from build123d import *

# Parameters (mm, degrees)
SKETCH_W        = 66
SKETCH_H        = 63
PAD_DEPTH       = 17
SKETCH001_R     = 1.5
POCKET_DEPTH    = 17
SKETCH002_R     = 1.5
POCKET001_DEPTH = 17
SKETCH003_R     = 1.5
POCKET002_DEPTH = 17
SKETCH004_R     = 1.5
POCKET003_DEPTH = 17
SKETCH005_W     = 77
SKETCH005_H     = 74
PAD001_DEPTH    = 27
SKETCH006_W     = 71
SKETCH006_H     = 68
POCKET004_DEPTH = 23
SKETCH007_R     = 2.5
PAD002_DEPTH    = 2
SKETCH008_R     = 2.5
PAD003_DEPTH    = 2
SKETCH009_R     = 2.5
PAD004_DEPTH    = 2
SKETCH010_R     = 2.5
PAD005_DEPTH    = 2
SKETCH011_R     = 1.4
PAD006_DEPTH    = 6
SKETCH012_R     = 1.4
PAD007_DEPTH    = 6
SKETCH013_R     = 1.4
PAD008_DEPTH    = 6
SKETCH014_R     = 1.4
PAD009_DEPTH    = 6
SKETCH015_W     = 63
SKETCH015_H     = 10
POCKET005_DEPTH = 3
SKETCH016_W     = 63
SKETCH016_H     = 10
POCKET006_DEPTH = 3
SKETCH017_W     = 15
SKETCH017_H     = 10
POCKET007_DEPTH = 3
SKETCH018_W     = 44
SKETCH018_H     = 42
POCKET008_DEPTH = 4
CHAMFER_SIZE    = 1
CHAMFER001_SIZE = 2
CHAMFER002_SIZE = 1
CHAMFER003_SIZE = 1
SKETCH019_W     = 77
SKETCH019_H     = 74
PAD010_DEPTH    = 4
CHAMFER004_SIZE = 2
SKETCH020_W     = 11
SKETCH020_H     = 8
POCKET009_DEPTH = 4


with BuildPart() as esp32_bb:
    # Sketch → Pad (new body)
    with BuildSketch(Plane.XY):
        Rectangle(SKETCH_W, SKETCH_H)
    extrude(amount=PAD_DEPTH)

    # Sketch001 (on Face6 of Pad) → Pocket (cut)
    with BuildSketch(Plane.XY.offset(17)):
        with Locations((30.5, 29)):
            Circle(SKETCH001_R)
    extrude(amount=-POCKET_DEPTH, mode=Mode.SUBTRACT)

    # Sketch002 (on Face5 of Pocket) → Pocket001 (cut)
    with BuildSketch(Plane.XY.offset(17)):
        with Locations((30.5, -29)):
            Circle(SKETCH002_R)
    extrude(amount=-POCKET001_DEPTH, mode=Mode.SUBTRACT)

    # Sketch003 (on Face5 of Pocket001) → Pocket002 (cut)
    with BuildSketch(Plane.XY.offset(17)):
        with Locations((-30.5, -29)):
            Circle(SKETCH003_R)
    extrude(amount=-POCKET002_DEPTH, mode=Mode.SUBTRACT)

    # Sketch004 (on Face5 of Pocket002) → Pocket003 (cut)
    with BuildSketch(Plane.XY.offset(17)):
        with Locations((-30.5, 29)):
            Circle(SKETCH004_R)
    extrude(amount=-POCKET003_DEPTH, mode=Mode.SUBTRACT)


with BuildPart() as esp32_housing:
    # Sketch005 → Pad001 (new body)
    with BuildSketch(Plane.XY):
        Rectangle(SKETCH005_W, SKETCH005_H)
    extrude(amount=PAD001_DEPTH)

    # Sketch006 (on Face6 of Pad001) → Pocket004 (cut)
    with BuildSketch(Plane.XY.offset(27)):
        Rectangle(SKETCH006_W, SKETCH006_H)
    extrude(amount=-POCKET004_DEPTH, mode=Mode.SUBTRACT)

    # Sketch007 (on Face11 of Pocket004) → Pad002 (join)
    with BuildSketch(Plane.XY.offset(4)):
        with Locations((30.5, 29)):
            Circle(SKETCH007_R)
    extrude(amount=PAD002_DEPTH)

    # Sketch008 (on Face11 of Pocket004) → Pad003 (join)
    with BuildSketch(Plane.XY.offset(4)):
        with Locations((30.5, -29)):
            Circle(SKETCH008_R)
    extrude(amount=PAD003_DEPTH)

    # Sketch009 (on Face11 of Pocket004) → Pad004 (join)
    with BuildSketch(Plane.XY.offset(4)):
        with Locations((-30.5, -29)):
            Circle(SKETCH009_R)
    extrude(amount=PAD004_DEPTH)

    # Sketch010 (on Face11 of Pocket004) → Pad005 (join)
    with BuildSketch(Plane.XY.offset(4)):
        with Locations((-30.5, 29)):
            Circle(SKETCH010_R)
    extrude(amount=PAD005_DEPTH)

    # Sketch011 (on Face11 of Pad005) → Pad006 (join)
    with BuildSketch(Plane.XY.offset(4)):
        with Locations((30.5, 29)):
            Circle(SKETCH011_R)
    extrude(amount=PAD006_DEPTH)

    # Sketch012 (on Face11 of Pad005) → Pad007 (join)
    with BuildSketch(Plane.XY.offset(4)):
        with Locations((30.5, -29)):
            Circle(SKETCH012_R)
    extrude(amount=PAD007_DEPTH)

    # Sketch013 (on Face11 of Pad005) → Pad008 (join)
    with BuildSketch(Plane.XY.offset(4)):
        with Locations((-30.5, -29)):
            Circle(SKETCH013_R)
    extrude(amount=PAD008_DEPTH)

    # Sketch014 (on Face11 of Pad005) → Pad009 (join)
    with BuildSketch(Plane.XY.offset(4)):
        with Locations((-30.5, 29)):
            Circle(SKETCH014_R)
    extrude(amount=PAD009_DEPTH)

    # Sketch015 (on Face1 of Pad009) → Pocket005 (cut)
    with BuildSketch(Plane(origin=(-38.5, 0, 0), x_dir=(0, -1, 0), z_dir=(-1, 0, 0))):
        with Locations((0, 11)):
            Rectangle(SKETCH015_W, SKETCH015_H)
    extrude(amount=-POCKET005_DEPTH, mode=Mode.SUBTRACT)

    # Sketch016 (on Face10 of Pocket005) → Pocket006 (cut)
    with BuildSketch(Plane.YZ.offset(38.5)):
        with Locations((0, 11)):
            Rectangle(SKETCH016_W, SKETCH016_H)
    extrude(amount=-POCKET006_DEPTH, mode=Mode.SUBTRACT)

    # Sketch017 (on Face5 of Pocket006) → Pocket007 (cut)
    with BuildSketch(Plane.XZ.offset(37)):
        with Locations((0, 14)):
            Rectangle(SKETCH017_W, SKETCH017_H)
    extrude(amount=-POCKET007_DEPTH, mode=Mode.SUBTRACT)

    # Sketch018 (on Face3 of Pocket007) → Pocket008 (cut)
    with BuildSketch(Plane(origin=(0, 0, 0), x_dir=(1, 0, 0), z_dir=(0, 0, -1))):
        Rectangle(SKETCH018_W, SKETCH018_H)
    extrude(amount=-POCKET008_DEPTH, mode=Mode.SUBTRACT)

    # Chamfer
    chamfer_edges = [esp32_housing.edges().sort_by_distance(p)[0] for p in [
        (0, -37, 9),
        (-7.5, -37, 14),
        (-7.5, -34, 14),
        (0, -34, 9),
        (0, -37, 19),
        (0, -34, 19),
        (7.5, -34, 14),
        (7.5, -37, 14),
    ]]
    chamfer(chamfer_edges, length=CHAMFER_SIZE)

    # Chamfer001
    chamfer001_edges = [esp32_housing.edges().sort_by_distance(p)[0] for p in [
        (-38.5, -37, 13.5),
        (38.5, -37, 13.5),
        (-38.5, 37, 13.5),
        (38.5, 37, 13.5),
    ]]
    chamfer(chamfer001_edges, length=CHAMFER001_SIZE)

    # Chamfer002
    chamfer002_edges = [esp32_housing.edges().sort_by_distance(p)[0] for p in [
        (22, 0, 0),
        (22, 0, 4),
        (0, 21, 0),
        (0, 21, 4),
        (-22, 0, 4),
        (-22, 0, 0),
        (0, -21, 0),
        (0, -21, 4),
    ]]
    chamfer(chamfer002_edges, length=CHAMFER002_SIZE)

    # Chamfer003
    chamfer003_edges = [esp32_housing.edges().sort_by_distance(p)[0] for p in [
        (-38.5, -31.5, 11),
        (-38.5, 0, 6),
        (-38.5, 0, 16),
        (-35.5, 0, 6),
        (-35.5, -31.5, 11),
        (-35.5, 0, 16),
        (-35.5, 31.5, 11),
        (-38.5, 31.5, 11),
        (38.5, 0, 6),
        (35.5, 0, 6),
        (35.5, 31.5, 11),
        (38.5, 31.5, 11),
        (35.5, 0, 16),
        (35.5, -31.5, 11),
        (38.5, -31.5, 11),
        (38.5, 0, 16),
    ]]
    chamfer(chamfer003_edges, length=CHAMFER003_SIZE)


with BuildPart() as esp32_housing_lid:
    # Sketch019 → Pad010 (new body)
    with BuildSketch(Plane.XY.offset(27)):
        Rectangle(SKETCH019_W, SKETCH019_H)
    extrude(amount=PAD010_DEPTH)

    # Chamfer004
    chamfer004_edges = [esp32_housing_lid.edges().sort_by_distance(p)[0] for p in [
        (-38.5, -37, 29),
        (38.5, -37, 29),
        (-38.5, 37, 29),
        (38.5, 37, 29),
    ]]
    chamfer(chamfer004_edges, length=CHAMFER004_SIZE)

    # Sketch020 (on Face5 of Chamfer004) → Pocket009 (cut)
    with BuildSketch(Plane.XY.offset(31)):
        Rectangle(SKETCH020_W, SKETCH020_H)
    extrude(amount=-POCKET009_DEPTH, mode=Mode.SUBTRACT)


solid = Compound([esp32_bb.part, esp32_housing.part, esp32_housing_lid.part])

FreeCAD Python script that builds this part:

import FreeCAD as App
import Part
import Sketcher

V = App.Vector


def edges_at(feature, points):
    """Names of the edges that pass closest to the given points."""
    edges = feature.Shape.Edges
    near = lambda p: min(range(len(edges)), key=lambda i: edges[i].distToShape(Part.Vertex(*p))[0])
    return sorted({f"Edge{near(p) + 1}" for p in points})


def add_polygon(sketch, points):
    """Adds a closed chain of lines whose ends are joined by coincident constraints."""
    first, n = sketch.GeometryCount, len(points)
    for a, b in zip(points, points[1:] + points[:1]):
        sketch.addGeometry(Part.LineSegment(App.Vector(*a, 0), App.Vector(*b, 0)), False)
    for i in range(n):
        sketch.addConstraint(Sketcher.Constraint("Coincident", first + i, 2, first + (i + 1) % n, 1))

doc = App.newDocument("Part")
body = doc.addObject("PartDesign::Body", "Body")

# Sketch on XY plane
sketch1 = body.newObject("Sketcher::SketchObject", "Sketch")
sketch1.AttachmentSupport = (doc.getObject("XY_Plane"), [""])
sketch1.MapMode = "FlatFace"
add_polygon(sketch1, [(-33, 31.5), (-33, -31.5), (33, -31.5), (33, 31.5)])  # lines 0-3
sketch1.addConstraint([
    Sketcher.Constraint("Vertical", 0),
    Sketcher.Constraint("Horizontal", 1),
    Sketcher.Constraint("Vertical", 2),
    Sketcher.Constraint("Horizontal", 3),
    Sketcher.Constraint("Symmetric", 0, 2, 2, 2, -1, 1),
    Sketcher.Constraint("DistanceX", 1, 1, 1, 2, 66.0),
    Sketcher.Constraint("DistanceY", 0, 2, 0, 1, 63.0),
])
pad1 = body.newObject("PartDesign::Pad", "Pad")
pad1.Profile = sketch1
pad1.Length = 17

# Sketch on XY plane
sketch2 = body.newObject("Sketcher::SketchObject", "Sketch001")
sketch2.AttachmentSupport = (doc.getObject("XY_Plane"), [""])
sketch2.MapMode = "FlatFace"
sketch2.AttachmentOffset = App.Placement(V(0, 0, 17), App.Rotation())
sketch2.addGeometry(Part.Circle(V(30.5, 29, 0), V(0, 0, 1), 1.5), False)
sketch2.addConstraint([
    Sketcher.Constraint("Diameter", 0, 3.0),
    Sketcher.Constraint("DistanceY", -1, 1, 0, 3, 29.0),
    Sketcher.Constraint("DistanceX", -1, 1, 0, 3, 30.5),
])
pocket1 = body.newObject("PartDesign::Pocket", "Pocket")
pocket1.Profile = sketch2
pocket1.Length = 17

# Sketch on XY plane
sketch3 = body.newObject("Sketcher::SketchObject", "Sketch002")
sketch3.AttachmentSupport = (doc.getObject("XY_Plane"), [""])
sketch3.MapMode = "FlatFace"
sketch3.AttachmentOffset = App.Placement(V(0, 0, 17), App.Rotation())
sketch3.addGeometry(Part.Circle(V(30.5, -29, 0), V(0, 0, 1), 1.5), False)
sketch3.addConstraint([
    Sketcher.Constraint("Diameter", 0, 3.0),
    Sketcher.Constraint("DistanceY", 0, 3, -1, 1, 29.0),
    Sketcher.Constraint("DistanceX", -1, 1, 0, 3, 30.5),
])
pocket2 = body.newObject("PartDesign::Pocket", "Pocket001")
pocket2.Profile = sketch3
pocket2.Length = 17

# Sketch on XY plane
sketch4 = body.newObject("Sketcher::SketchObject", "Sketch003")
sketch4.AttachmentSupport = (doc.getObject("XY_Plane"), [""])
sketch4.MapMode = "FlatFace"
sketch4.AttachmentOffset = App.Placement(V(0, 0, 17), App.Rotation())
sketch4.addGeometry(Part.Circle(V(-30.5, -29, 0), V(0, 0, 1), 1.5), False)
sketch4.addConstraint([
    Sketcher.Constraint("Diameter", 0, 3.0),
    Sketcher.Constraint("DistanceY", 0, 3, -1, 1, 29.0),
    Sketcher.Constraint("DistanceX", 0, 3, -1, 1, 30.5),
])
pocket3 = body.newObject("PartDesign::Pocket", "Pocket002")
pocket3.Profile = sketch4
pocket3.Length = 17

# Sketch on XY plane
sketch5 = body.newObject("Sketcher::SketchObject", "Sketch004")
sketch5.AttachmentSupport = (doc.getObject("XY_Plane"), [""])
sketch5.MapMode = "FlatFace"
sketch5.AttachmentOffset = App.Placement(V(0, 0, 17), App.Rotation())
sketch5.addGeometry(Part.Circle(V(-30.5, 29, 0), V(0, 0, 1), 1.5), False)
sketch5.addConstraint([
    Sketcher.Constraint("Diameter", 0, 3.0),
    Sketcher.Constraint("DistanceY", -1, 1, 0, 3, 29.0),
    Sketcher.Constraint("DistanceX", 0, 3, -1, 1, 30.5),
])
pocket4 = body.newObject("PartDesign::Pocket", "Pocket003")
pocket4.Profile = sketch5
pocket4.Length = 17
body2 = doc.addObject("PartDesign::Body", "Body001")

# Sketch on XY plane
sketch6 = body2.newObject("Sketcher::SketchObject", "Sketch005")
sketch6.AttachmentSupport = (doc.getObject("XY_Plane001"), [""])
sketch6.MapMode = "FlatFace"
add_polygon(sketch6, [(-38.5, 37), (-38.5, -37), (38.5, -37), (38.5, 37)])  # lines 0-3
sketch6.addConstraint([
    Sketcher.Constraint("Vertical", 0),
    Sketcher.Constraint("Horizontal", 1),
    Sketcher.Constraint("Vertical", 2),
    Sketcher.Constraint("Horizontal", 3),
    Sketcher.Constraint("Symmetric", 0, 2, 2, 2, -1, 1),
    Sketcher.Constraint("DistanceX", 1, 1, 1, 2, 77.0),
    Sketcher.Constraint("DistanceY", 0, 2, 0, 1, 74.0),
])
pad2 = body2.newObject("PartDesign::Pad", "Pad001")
pad2.Profile = sketch6
pad2.Length = 27

# Sketch on XY plane
sketch7 = body2.newObject("Sketcher::SketchObject", "Sketch006")
sketch7.AttachmentSupport = (doc.getObject("XY_Plane001"), [""])
sketch7.MapMode = "FlatFace"
sketch7.AttachmentOffset = App.Placement(V(0, 0, 27), App.Rotation())
add_polygon(sketch7, [(-35.5, 34), (-35.5, -34), (35.5, -34), (35.5, 34)])  # lines 0-3
sketch7.addConstraint([
    Sketcher.Constraint("Vertical", 0),
    Sketcher.Constraint("Horizontal", 1),
    Sketcher.Constraint("Vertical", 2),
    Sketcher.Constraint("Horizontal", 3),
    Sketcher.Constraint("Symmetric", 0, 2, 2, 2, -1, 1),
    Sketcher.Constraint("DistanceX", 1, 1, 1, 2, 71.0),
    Sketcher.Constraint("DistanceY", 0, 2, 0, 1, 68.0),
])
pocket5 = body2.newObject("PartDesign::Pocket", "Pocket004")
pocket5.Profile = sketch7
pocket5.Length = 23

# Sketch on XY plane
sketch8 = body2.newObject("Sketcher::SketchObject", "Sketch007")
sketch8.AttachmentSupport = (doc.getObject("XY_Plane001"), [""])
sketch8.MapMode = "FlatFace"
sketch8.AttachmentOffset = App.Placement(V(0, 0, 4), App.Rotation())
sketch8.addGeometry(Part.Circle(V(30.5, 29, 0), V(0, 0, 1), 2.5), False)
sketch8.addConstraint([
    Sketcher.Constraint("Diameter", 0, 5.0),
    Sketcher.Constraint("DistanceY", -1, 1, 0, 3, 29.0),
    Sketcher.Constraint("DistanceX", -1, 1, 0, 3, 30.5),
])
pad3 = body2.newObject("PartDesign::Pad", "Pad002")
pad3.Profile = sketch8
pad3.Length = 2

# Sketch on XY plane
sketch9 = body2.newObject("Sketcher::SketchObject", "Sketch008")
sketch9.AttachmentSupport = (doc.getObject("XY_Plane001"), [""])
sketch9.MapMode = "FlatFace"
sketch9.AttachmentOffset = App.Placement(V(0, 0, 4), App.Rotation())
sketch9.addGeometry(Part.Circle(V(30.5, -29, 0), V(0, 0, 1), 2.5), False)
sketch9.addConstraint([
    Sketcher.Constraint("Diameter", 0, 5.0),
    Sketcher.Constraint("DistanceY", 0, 3, -1, 1, 29.0),
    Sketcher.Constraint("DistanceX", -1, 1, 0, 3, 30.5),
])
pad4 = body2.newObject("PartDesign::Pad", "Pad003")
pad4.Profile = sketch9
pad4.Length = 2

# Sketch on XY plane
sketch10 = body2.newObject("Sketcher::SketchObject", "Sketch009")
sketch10.AttachmentSupport = (doc.getObject("XY_Plane001"), [""])
sketch10.MapMode = "FlatFace"
sketch10.AttachmentOffset = App.Placement(V(0, 0, 4), App.Rotation())
sketch10.addGeometry(Part.Circle(V(-30.5, -29, 0), V(0, 0, 1), 2.5), False)
sketch10.addConstraint([
    Sketcher.Constraint("Diameter", 0, 5.0),
    Sketcher.Constraint("DistanceY", 0, 3, -1, 1, 29.0),
    Sketcher.Constraint("DistanceX", 0, 3, -1, 1, 30.5),
])
pad5 = body2.newObject("PartDesign::Pad", "Pad004")
pad5.Profile = sketch10
pad5.Length = 2

# Sketch on XY plane
sketch11 = body2.newObject("Sketcher::SketchObject", "Sketch010")
sketch11.AttachmentSupport = (doc.getObject("XY_Plane001"), [""])
sketch11.MapMode = "FlatFace"
sketch11.AttachmentOffset = App.Placement(V(0, 0, 4), App.Rotation())
sketch11.addGeometry(Part.Circle(V(-30.5, 29, 0), V(0, 0, 1), 2.5), False)
sketch11.addConstraint([
    Sketcher.Constraint("Diameter", 0, 5.0),
    Sketcher.Constraint("DistanceY", -1, 1, 0, 3, 29.0),
    Sketcher.Constraint("DistanceX", 0, 3, -1, 1, 30.5),
])
pad6 = body2.newObject("PartDesign::Pad", "Pad005")
pad6.Profile = sketch11
pad6.Length = 2

# Sketch on XY plane
sketch12 = body2.newObject("Sketcher::SketchObject", "Sketch011")
sketch12.AttachmentSupport = (doc.getObject("XY_Plane001"), [""])
sketch12.MapMode = "FlatFace"
sketch12.AttachmentOffset = App.Placement(V(0, 0, 4), App.Rotation())
sketch12.addGeometry(Part.Circle(V(30.5, 29, 0), V(0, 0, 1), 1.4), False)
sketch12.addConstraint([
    Sketcher.Constraint("Diameter", 0, 2.8),
    Sketcher.Constraint("DistanceY", -1, 1, 0, 3, 29.0),
    Sketcher.Constraint("DistanceX", -1, 1, 0, 3, 30.5),
])
pad7 = body2.newObject("PartDesign::Pad", "Pad006")
pad7.Profile = sketch12
pad7.Length = 6

# Sketch on XY plane
sketch13 = body2.newObject("Sketcher::SketchObject", "Sketch012")
sketch13.AttachmentSupport = (doc.getObject("XY_Plane001"), [""])
sketch13.MapMode = "FlatFace"
sketch13.AttachmentOffset = App.Placement(V(0, 0, 4), App.Rotation())
sketch13.addGeometry(Part.Circle(V(30.5, -29, 0), V(0, 0, 1), 1.4), False)
sketch13.addConstraint([
    Sketcher.Constraint("Diameter", 0, 2.8),
    Sketcher.Constraint("DistanceY", 0, 3, -1, 1, 29.0),
    Sketcher.Constraint("DistanceX", -1, 1, 0, 3, 30.5),
])
pad8 = body2.newObject("PartDesign::Pad", "Pad007")
pad8.Profile = sketch13
pad8.Length = 6

# Sketch on XY plane
sketch14 = body2.newObject("Sketcher::SketchObject", "Sketch013")
sketch14.AttachmentSupport = (doc.getObject("XY_Plane001"), [""])
sketch14.MapMode = "FlatFace"
sketch14.AttachmentOffset = App.Placement(V(0, 0, 4), App.Rotation())
sketch14.addGeometry(Part.Circle(V(-30.5, -29, 0), V(0, 0, 1), 1.4), False)
sketch14.addConstraint([
    Sketcher.Constraint("Diameter", 0, 2.8),
    Sketcher.Constraint("DistanceY", 0, 3, -1, 1, 29.0),
    Sketcher.Constraint("DistanceX", 0, 3, -1, 1, 30.5),
])
pad9 = body2.newObject("PartDesign::Pad", "Pad008")
pad9.Profile = sketch14
pad9.Length = 6

# Sketch on XY plane
sketch15 = body2.newObject("Sketcher::SketchObject", "Sketch014")
sketch15.AttachmentSupport = (doc.getObject("XY_Plane001"), [""])
sketch15.MapMode = "FlatFace"
sketch15.AttachmentOffset = App.Placement(V(0, 0, 4), App.Rotation())
sketch15.addGeometry(Part.Circle(V(-30.5, 29, 0), V(0, 0, 1), 1.4), False)
sketch15.addConstraint([
    Sketcher.Constraint("Diameter", 0, 2.8),
    Sketcher.Constraint("DistanceY", -1, 1, 0, 3, 29.0),
    Sketcher.Constraint("DistanceX", 0, 3, -1, 1, 30.5),
])
pad10 = body2.newObject("PartDesign::Pad", "Pad009")
pad10.Profile = sketch15
pad10.Length = 6

# Sketch on YZ plane
sketch16 = body2.newObject("Sketcher::SketchObject", "Sketch015")
sketch16.AttachmentSupport = (doc.getObject("YZ_Plane001"), [""])
sketch16.MapMode = "FlatFace"
sketch16.AttachmentOffset = App.Placement(V(0, 0, -38.5), App.Rotation())
add_polygon(sketch16, [(31.5, 16), (31.5, 6), (-31.5, 6), (-31.5, 16)])  # lines 0-3
sketch16.addConstraint([
    Sketcher.Constraint("Vertical", 0),
    Sketcher.Constraint("Horizontal", 1),
    Sketcher.Constraint("Vertical", 2),
    Sketcher.Constraint("Horizontal", 3),
    Sketcher.Constraint("DistanceX", 1, 2, 1, 1, 63.0),
    Sketcher.Constraint("DistanceY", 0, 2, 0, 1, 10.0),
    Sketcher.Constraint("DistanceY", -1, 1, 0, 2, 6.0),
    Sketcher.Constraint("DistanceX", -1, 1, 0, 2, 31.5),
])
pocket6 = body2.newObject("PartDesign::Pocket", "Pocket005")
pocket6.Profile = sketch16
pocket6.Length = 3
pocket6.Reversed = True

# Sketch on YZ plane
sketch17 = body2.newObject("Sketcher::SketchObject", "Sketch016")
sketch17.AttachmentSupport = (doc.getObject("YZ_Plane001"), [""])
sketch17.MapMode = "FlatFace"
sketch17.AttachmentOffset = App.Placement(V(0, 0, 38.5), App.Rotation())
add_polygon(sketch17, [(-31.5, 16), (-31.5, 6), (31.5, 6), (31.5, 16)])  # lines 0-3
sketch17.addConstraint([
    Sketcher.Constraint("Vertical", 0),
    Sketcher.Constraint("Horizontal", 1),
    Sketcher.Constraint("Vertical", 2),
    Sketcher.Constraint("Horizontal", 3),
    Sketcher.Constraint("DistanceX", 1, 1, 1, 2, 63.0),
    Sketcher.Constraint("DistanceY", 0, 2, 0, 1, 10.0),
    Sketcher.Constraint("DistanceY", -1, 1, 0, 2, 6.0),
    Sketcher.Constraint("DistanceX", 0, 2, -1, 1, 31.5),
])
pocket7 = body2.newObject("PartDesign::Pocket", "Pocket006")
pocket7.Profile = sketch17
pocket7.Length = 3

# Sketch on XZ plane
sketch18 = body2.newObject("Sketcher::SketchObject", "Sketch017")
sketch18.AttachmentSupport = (doc.getObject("XZ_Plane001"), [""])
sketch18.MapMode = "FlatFace"
sketch18.AttachmentOffset = App.Placement(V(0, 0, 37), App.Rotation())
add_polygon(sketch18, [(-7.5, 19), (-7.5, 9), (7.5, 9), (7.5, 19)])  # lines 0-3
sketch18.addConstraint([
    Sketcher.Constraint("Vertical", 0),
    Sketcher.Constraint("Horizontal", 1),
    Sketcher.Constraint("Vertical", 2),
    Sketcher.Constraint("Horizontal", 3),
    Sketcher.Constraint("DistanceX", 1, 1, 1, 2, 15.0),
    Sketcher.Constraint("DistanceY", 0, 2, 0, 1, 10.0),
    Sketcher.Constraint("DistanceY", -1, 1, 0, 2, 9.0),
    Sketcher.Constraint("DistanceX", 0, 2, -1, 1, 7.5),
])
pocket8 = body2.newObject("PartDesign::Pocket", "Pocket007")
pocket8.Profile = sketch18
pocket8.Length = 3

# Sketch on XY plane
sketch19 = body2.newObject("Sketcher::SketchObject", "Sketch018")
sketch19.AttachmentSupport = (doc.getObject("XY_Plane001"), [""])
sketch19.MapMode = "FlatFace"
add_polygon(sketch19, [(-22, -21), (-22, 21), (22, 21), (22, -21)])  # lines 0-3
sketch19.addConstraint([
    Sketcher.Constraint("Vertical", 0),
    Sketcher.Constraint("Horizontal", 1),
    Sketcher.Constraint("Vertical", 2),
    Sketcher.Constraint("Horizontal", 3),
    Sketcher.Constraint("Symmetric", 0, 2, 2, 2, -1, 1),
    Sketcher.Constraint("DistanceX", 1, 1, 1, 2, 44.0),
    Sketcher.Constraint("DistanceY", 0, 1, 0, 2, 42.0),
])
pocket9 = body2.newObject("PartDesign::Pocket", "Pocket008")
pocket9.Profile = sketch19
pocket9.Length = 4
pocket9.Reversed = True
doc.recompute()

chamfer = body2.newObject("PartDesign::Chamfer", "Chamfer")
chamfer.Base = (pocket9, edges_at(pocket9, [
    (0, -37, 9),
    (-7.5, -37, 14),
    (-7.5, -34, 14),
    (0, -34, 9),
    (0, -37, 19),
    (0, -34, 19),
    (7.5, -34, 14),
    (7.5, -37, 14),
]))
chamfer.Size = 1
doc.recompute()

chamfer2 = body2.newObject("PartDesign::Chamfer", "Chamfer001")
chamfer2.Base = (chamfer, edges_at(chamfer, [
    (-38.5, -37, 13.5),
    (38.5, -37, 13.5),
    (-38.5, 37, 13.5),
    (38.5, 37, 13.5),
]))
chamfer2.Size = 2
doc.recompute()

chamfer3 = body2.newObject("PartDesign::Chamfer", "Chamfer002")
chamfer3.Base = (chamfer2, edges_at(chamfer2, [
    (22, 0, 0),
    (22, 0, 4),
    (0, 21, 0),
    (0, 21, 4),
    (-22, 0, 4),
    (-22, 0, 0),
    (0, -21, 0),
    (0, -21, 4),
]))
chamfer3.Size = 1
doc.recompute()

chamfer4 = body2.newObject("PartDesign::Chamfer", "Chamfer003")
chamfer4.Base = (chamfer3, edges_at(chamfer3, [
    (-38.5, -31.5, 11),
    (-38.5, 0, 6),
    (-38.5, 0, 16),
    (-35.5, 0, 6),
    (-35.5, -31.5, 11),
    (-35.5, 0, 16),
    (-35.5, 31.5, 11),
    (-38.5, 31.5, 11),
    (38.5, 0, 6),
    (35.5, 0, 6),
    (35.5, 31.5, 11),
    (38.5, 31.5, 11),
    (35.5, 0, 16),
    (35.5, -31.5, 11),
    (38.5, -31.5, 11),
    (38.5, 0, 16),
]))
chamfer4.Size = 1
body3 = doc.addObject("PartDesign::Body", "Body002")

# Sketch on XY plane
sketch20 = body3.newObject("Sketcher::SketchObject", "Sketch019")
sketch20.AttachmentSupport = (doc.getObject("XY_Plane002"), [""])
sketch20.MapMode = "FlatFace"
sketch20.AttachmentOffset = App.Placement(V(0, 0, 27), App.Rotation())
add_polygon(sketch20, [(-38.5, 37), (-38.5, -37), (38.5, -37), (38.5, 37)])  # lines 0-3
sketch20.addConstraint([
    Sketcher.Constraint("Vertical", 0),
    Sketcher.Constraint("Horizontal", 1),
    Sketcher.Constraint("Vertical", 2),
    Sketcher.Constraint("Horizontal", 3),
    Sketcher.Constraint("Symmetric", 0, 2, 2, 2, -1, 1),
    Sketcher.Constraint("DistanceX", 1, 1, 1, 2, 77.0),
    Sketcher.Constraint("DistanceY", 0, 2, 0, 1, 74.0),
])
pad11 = body3.newObject("PartDesign::Pad", "Pad010")
pad11.Profile = sketch20
pad11.Length = 4
doc.recompute()

chamfer5 = body3.newObject("PartDesign::Chamfer", "Chamfer004")
chamfer5.Base = (pad11, edges_at(pad11, [
    (-38.5, -37, 29),
    (38.5, -37, 29),
    (-38.5, 37, 29),
    (38.5, 37, 29),
]))
chamfer5.Size = 2

# Sketch on XY plane
sketch21 = body3.newObject("Sketcher::SketchObject", "Sketch020")
sketch21.AttachmentSupport = (doc.getObject("XY_Plane002"), [""])
sketch21.MapMode = "FlatFace"
sketch21.AttachmentOffset = App.Placement(V(0, 0, 31), App.Rotation())
add_polygon(sketch21, [(-5.5, 4), (-5.5, -4), (5.5, -4), (5.5, 4)])  # lines 0-3
sketch21.addConstraint([
    Sketcher.Constraint("Vertical", 0),
    Sketcher.Constraint("Horizontal", 1),
    Sketcher.Constraint("Vertical", 2),
    Sketcher.Constraint("Horizontal", 3),
    Sketcher.Constraint("Symmetric", 0, 2, 2, 2, -1, 1),
    Sketcher.Constraint("DistanceX", 1, 1, 1, 2, 11.0),
    Sketcher.Constraint("DistanceY", 0, 2, 0, 1, 8.0),
])
pocket10 = body3.newObject("PartDesign::Pocket", "Pocket009")
pocket10.Profile = sketch21
pocket10.Length = 4

doc.recompute()
